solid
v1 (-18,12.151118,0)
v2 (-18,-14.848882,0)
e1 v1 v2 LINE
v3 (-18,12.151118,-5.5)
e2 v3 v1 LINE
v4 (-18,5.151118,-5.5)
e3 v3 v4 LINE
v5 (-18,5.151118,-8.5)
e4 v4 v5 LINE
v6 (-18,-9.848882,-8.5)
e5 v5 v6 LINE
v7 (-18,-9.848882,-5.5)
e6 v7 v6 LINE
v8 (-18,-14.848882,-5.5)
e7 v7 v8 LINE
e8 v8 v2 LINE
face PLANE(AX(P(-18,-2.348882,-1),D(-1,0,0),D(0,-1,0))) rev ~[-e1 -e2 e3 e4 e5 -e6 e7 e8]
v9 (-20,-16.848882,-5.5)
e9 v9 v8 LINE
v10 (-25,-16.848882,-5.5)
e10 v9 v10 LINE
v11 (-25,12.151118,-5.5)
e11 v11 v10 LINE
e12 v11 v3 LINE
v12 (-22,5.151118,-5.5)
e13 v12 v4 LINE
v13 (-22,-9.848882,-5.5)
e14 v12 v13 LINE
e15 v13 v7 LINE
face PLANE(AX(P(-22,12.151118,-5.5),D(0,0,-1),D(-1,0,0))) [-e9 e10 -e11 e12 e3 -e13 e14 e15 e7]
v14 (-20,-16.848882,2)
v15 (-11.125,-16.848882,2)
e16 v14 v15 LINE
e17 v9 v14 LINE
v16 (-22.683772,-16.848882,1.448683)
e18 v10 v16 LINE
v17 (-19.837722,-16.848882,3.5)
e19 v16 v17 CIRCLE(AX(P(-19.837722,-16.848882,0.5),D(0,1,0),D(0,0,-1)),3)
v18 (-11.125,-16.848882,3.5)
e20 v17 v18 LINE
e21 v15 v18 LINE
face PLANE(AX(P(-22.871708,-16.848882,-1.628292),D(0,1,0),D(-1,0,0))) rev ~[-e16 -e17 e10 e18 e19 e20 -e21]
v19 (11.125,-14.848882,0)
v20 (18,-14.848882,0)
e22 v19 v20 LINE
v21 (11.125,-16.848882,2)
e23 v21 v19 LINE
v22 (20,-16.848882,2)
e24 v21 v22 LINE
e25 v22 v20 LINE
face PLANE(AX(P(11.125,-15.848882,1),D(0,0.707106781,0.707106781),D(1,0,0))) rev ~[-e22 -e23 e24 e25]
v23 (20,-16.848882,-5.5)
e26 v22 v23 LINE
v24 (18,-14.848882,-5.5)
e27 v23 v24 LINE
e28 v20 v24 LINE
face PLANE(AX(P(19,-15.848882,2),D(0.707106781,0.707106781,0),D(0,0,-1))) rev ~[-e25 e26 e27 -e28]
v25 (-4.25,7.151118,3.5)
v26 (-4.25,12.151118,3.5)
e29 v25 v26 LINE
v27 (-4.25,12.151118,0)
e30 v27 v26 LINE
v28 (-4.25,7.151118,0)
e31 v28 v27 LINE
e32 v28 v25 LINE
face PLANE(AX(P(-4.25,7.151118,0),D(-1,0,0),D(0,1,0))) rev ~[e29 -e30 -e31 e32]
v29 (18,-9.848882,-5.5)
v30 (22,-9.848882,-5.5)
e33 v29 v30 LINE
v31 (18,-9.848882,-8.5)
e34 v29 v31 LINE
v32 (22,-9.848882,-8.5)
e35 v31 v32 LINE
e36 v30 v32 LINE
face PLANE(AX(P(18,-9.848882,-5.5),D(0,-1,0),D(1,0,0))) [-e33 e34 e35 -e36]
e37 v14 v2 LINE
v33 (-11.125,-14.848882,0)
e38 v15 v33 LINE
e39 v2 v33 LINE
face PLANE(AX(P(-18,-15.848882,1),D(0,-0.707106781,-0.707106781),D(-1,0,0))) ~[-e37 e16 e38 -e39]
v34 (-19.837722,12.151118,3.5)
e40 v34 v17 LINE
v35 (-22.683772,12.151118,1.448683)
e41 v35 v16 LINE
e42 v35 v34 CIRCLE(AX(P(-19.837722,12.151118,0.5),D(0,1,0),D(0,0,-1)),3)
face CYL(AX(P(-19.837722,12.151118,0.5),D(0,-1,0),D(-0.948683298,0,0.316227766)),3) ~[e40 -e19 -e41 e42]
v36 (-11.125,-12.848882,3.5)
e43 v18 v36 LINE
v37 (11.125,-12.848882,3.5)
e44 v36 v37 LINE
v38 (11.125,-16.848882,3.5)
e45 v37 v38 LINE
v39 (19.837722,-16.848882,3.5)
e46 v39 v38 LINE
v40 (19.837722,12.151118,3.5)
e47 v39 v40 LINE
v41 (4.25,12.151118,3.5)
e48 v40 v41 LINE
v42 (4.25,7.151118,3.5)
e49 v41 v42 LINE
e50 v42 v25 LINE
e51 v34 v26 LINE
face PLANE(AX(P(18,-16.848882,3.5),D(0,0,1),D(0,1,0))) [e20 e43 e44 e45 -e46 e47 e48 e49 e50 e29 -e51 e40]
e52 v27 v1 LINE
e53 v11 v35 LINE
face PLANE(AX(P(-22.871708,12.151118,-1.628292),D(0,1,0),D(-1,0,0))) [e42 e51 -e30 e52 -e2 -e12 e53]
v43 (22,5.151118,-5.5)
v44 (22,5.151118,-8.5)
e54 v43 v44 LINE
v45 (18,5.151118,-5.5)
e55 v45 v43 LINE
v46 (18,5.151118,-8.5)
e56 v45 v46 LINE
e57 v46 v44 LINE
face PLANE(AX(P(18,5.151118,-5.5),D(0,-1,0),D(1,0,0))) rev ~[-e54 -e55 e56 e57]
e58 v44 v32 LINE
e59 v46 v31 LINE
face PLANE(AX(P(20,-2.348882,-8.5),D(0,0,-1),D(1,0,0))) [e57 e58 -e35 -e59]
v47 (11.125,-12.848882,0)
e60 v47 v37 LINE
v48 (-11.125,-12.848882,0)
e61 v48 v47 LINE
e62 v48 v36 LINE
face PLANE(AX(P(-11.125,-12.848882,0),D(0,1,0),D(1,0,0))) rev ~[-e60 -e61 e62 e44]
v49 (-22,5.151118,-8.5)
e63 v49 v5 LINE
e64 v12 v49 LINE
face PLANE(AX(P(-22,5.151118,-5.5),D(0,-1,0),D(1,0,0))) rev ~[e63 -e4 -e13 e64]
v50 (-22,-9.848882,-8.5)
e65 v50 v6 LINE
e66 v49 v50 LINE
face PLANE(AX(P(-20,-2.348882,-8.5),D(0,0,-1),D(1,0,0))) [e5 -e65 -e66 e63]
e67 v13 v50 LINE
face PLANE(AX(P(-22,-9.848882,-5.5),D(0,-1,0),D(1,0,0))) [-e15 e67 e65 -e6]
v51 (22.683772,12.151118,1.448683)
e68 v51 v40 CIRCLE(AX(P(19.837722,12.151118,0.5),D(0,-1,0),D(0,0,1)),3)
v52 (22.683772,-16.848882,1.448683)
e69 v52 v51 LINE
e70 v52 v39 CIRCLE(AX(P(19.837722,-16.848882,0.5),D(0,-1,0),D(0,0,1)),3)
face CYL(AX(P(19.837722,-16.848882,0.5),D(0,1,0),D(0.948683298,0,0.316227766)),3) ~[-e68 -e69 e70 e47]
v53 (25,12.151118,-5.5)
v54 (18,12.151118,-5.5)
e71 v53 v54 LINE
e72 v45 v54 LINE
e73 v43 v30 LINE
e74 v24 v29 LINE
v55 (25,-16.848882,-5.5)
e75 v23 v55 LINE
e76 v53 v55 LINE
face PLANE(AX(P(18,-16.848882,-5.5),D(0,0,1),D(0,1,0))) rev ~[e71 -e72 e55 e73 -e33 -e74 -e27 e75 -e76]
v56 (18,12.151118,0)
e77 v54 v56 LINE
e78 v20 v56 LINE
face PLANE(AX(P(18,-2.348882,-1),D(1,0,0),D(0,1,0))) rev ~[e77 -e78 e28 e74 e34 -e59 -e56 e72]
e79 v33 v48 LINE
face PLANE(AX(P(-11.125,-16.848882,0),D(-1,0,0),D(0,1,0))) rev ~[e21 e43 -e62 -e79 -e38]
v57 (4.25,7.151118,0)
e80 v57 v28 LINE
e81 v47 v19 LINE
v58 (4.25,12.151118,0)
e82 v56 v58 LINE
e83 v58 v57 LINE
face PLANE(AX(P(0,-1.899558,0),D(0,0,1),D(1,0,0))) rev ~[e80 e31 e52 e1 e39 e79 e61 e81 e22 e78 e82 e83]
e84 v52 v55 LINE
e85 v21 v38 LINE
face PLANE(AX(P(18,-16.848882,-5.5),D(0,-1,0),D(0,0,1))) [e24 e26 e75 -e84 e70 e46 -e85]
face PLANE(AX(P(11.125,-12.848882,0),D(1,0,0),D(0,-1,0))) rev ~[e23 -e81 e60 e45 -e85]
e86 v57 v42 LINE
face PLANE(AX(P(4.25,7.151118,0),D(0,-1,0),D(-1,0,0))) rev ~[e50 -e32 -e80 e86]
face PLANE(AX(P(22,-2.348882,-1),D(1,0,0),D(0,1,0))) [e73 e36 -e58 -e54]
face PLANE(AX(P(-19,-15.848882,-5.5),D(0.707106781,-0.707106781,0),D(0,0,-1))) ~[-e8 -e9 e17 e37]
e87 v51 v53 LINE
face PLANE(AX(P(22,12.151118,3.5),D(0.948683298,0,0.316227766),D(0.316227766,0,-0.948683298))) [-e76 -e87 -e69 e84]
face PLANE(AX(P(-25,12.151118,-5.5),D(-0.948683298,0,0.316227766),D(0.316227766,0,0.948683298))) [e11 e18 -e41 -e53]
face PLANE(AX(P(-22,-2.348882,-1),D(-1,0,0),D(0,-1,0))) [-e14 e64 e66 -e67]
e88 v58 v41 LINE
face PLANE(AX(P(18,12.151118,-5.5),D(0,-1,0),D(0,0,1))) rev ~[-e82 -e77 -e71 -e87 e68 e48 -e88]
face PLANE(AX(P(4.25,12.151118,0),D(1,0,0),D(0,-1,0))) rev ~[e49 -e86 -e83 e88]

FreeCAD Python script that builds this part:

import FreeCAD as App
import Part
import Sketcher

V = App.Vector


def edges_at(feature, points):
    """Names of the edges that pass closest to the given points."""
    edges = feature.Shape.Edges
    near = lambda p: min(range(len(edges)), key=lambda i: edges[i].distToShape(Part.Vertex(*p))[0])
    return sorted({f"Edge{near(p) + 1}" for p in points})


def add_polygon(sketch, points):
    """Adds a closed chain of lines whose ends are joined by coincident constraints."""
    first, n = sketch.GeometryCount, len(points)
    for a, b in zip(points, points[1:] + points[:1]):
        sketch.addGeometry(Part.LineSegment(App.Vector(*a, 0), App.Vector(*b, 0)), False)
    for i in range(n):
        sketch.addConstraint(Sketcher.Constraint("Coincident", first + i, 2, first + (i + 1) % n, 1))

doc = App.newDocument("Part")
body = doc.addObject("PartDesign::Body", "Body")

sketch1 = doc.addObject("Sketcher::SketchObject", "Sketch")
body.addObject(sketch1)
sketch1.AttachmentSupport = (doc.XY_Plane, [""])
sketch1.MapMode = "FlatFace"
add_polygon(sketch1, [(-4.2, 12.2), (-18, 12.2), (-18, -16.8), (-11.1, -16.8), (-11.1, -12.8), (11.1, -12.8), (11.1, -16.8), (18, -16.8), (18, 12.2), (4.2, 12.2), (4.2, 7.2), (-4.2, 7.2)])
sketch1.addConstraint(Sketcher.Constraint("Horizontal", 0))
sketch1.addConstraint(Sketcher.Constraint("Vertical", 1))
sketch1.addConstraint(Sketcher.Constraint("Horizontal", 2))
sketch1.addConstraint(Sketcher.Constraint("Vertical", 3))
sketch1.addConstraint(Sketcher.Constraint("Horizontal", 4))
sketch1.addConstraint(Sketcher.Constraint("Vertical", 5))
sketch1.addConstraint(Sketcher.Constraint("Horizontal", 6))
sketch1.addConstraint(Sketcher.Constraint("Vertical", 7))
sketch1.addConstraint(Sketcher.Constraint("Horizontal", 8))
sketch1.addConstraint(Sketcher.Constraint("Vertical", 9))
sketch1.addConstraint(Sketcher.Constraint("Horizontal", 10))
sketch1.addConstraint(Sketcher.Constraint("Vertical", 11))
sketch1.addConstraint(Sketcher.Constraint("Symmetric", 2, 2, 5, 2, -2))
sketch1.addConstraint(Sketcher.Constraint("Symmetric", 0, 2, 7, 2, -2))
sketch1.addConstraint(Sketcher.Constraint("Equal", 0, 8))
sketch1.addConstraint(Sketcher.Constraint("DistanceY", 1, 2, 1, 1, 29.0))
sketch1.addConstraint(Sketcher.Constraint("DistanceY", 3, 1, 3, 2, 4.0))
sketch1.addConstraint(Sketcher.Constraint("DistanceY", 9, 2, 9, 1, 5.0))
sketch1.addConstraint(Sketcher.Constraint("DistanceX", 10, 2, 10, 1, 8.5))
sketch1.addConstraint(Sketcher.Constraint("DistanceX", 0, 2, -1, 1, 18.0))
sketch1.addConstraint(Sketcher.Constraint("DistanceX", 4, 1, 4, 2, 22.25))
sketch1.addConstraint(Sketcher.Constraint("DistanceY", -1, 1, 0, 2, 12.151118))
pad1 = doc.addObject("PartDesign::Pad", "Pad")
body.addObject(pad1)
pad1.Profile = sketch1
pad1.Length = 3.5

sketch2 = doc.addObject("Sketcher::SketchObject", "Sketch001")
body.addObject(sketch2)
sketch2.AttachmentSupport = (doc.YZ_Plane, [""])
sketch2.MapMode = "FlatFace"
sketch2.AttachmentOffset = App.Placement(V(0, 0, -18), App.Rotation())
add_polygon(sketch2, [(12, 4), (12, -6), (-17, -6), (-17, 4)])
sketch2.addConstraint(Sketcher.Constraint("Vertical", 0))
sketch2.addConstraint(Sketcher.Constraint("Horizontal", 1))
sketch2.addConstraint(Sketcher.Constraint("Vertical", 2))
sketch2.addConstraint(Sketcher.Constraint("Horizontal", 3))
sketch2.addConstraint(Sketcher.Constraint("DistanceX", 1, 2, 1, 1, 29.0))
sketch2.addConstraint(Sketcher.Constraint("DistanceY", 0, 2, 0, 1, 9.0))
sketch2.addConstraint(Sketcher.Constraint("DistanceY", 0, 2, -1, 1, 5.5))
sketch2.addConstraint(Sketcher.Constraint("DistanceX", -1, 1, 0, 2, 12.151118))
pad2 = doc.addObject("PartDesign::Pad", "Pad001")
body.addObject(pad2)
pad2.Profile = sketch2
pad2.Length = 4
pad2.Reversed = True

sketch3 = doc.addObject("Sketcher::SketchObject", "Sketch002")
body.addObject(sketch3)
sketch3.AttachmentSupport = (doc.YZ_Plane, [""])
sketch3.MapMode = "FlatFace"
sketch3.AttachmentOffset = App.Placement(V(0, 0, 18), App.Rotation())
add_polygon(sketch3, [(-17, 4), (-17, -6), (12, -6), (12, 4)])
sketch3.addConstraint(Sketcher.Constraint("Vertical", 0))
sketch3.addConstraint(Sketcher.Constraint("Horizontal", 1))
sketch3.addConstraint(Sketcher.Constraint("Vertical", 2))
sketch3.addConstraint(Sketcher.Constraint("Horizontal", 3))
sketch3.addConstraint(Sketcher.Constraint("DistanceX", 1, 1, 1, 2, 29.0))
sketch3.addConstraint(Sketcher.Constraint("DistanceY", 0, 2, 0, 1, 9.0))
sketch3.addConstraint(Sketcher.Constraint("DistanceY", 0, 2, -1, 1, 5.5))
sketch3.addConstraint(Sketcher.Constraint("DistanceX", 0, 2, -1, 1, 16.848882))
pad3 = doc.addObject("PartDesign::Pad", "Pad002")
body.addObject(pad3)
pad3.Profile = sketch3
pad3.Length = 4
doc.recompute()

chamfer = doc.addObject("PartDesign::Chamfer", "Chamfer")
body.addObject(chamfer)
chamfer.Base = (pad3, edges_at(pad3, [(-14.562, -16.849, 0), (14.562, -16.849, 0)]))
chamfer.Size = 2

sketch4 = doc.addObject("Sketcher::SketchObject", "Sketch003")
body.addObject(sketch4)
sketch4.AttachmentSupport = (doc.XY_Plane, [""])
sketch4.MapMode = "FlatFace"
sketch4.AttachmentOffset = App.Placement(V(0, 0, -5.5), App.Rotation())
add_polygon(sketch4, [(18, -9.8), (18, 5.2), (22, 5.2), (22, -9.8)])
add_polygon(sketch4, [(-22, -9.8), (-22, 5.2), (-18, 5.2), (-18, -9.8)])
sketch4.addConstraint(Sketcher.Constraint("Vertical", 0))
sketch4.addConstraint(Sketcher.Constraint("Horizontal", 1))
sketch4.addConstraint(Sketcher.Constraint("Vertical", 2))
sketch4.addConstraint(Sketcher.Constraint("Horizontal", 3))
sketch4.addConstraint(Sketcher.Constraint("Vertical", 4))
sketch4.addConstraint(Sketcher.Constraint("Horizontal", 5))
sketch4.addConstraint(Sketcher.Constraint("Vertical", 6))
sketch4.addConstraint(Sketcher.Constraint("Horizontal", 7))
sketch4.addConstraint(Sketcher.Constraint("Symmetric", 1, 2, 4, 2, -2))
sketch4.addConstraint(Sketcher.Constraint("Symmetric", 3, 2, 6, 2, -2))
sketch4.addConstraint(Sketcher.Constraint("DistanceX", 1, 1, 1, 2, 4.0))
sketch4.addConstraint(Sketcher.Constraint("DistanceY", 0, 1, 0, 2, 15.0))
sketch4.addConstraint(Sketcher.Constraint("DistanceX", -1, 1, 0, 2, 18.0))
sketch4.addConstraint(Sketcher.Constraint("DistanceY", -1, 1, 0, 2, 5.151118))
pad4 = doc.addObject("PartDesign::Pad", "Pad003")
body.addObject(pad4)
pad4.Profile = sketch4
pad4.Length = 3
pad4.Reversed = True
doc.recompute()

chamfer2 = doc.addObject("PartDesign::Chamfer", "Chamfer001")
body.addObject(chamfer2)
chamfer2.Base = (pad4, edges_at(pad4, [(18, -16.849, -1.75), (-18, -16.849, -1.75)]))
chamfer2.Size = 2

sketch5 = doc.addObject("Sketcher::SketchObject", "Sketch004")
body.addObject(sketch5)
sketch5.AttachmentSupport = (doc.XZ_Plane, [""])
sketch5.MapMode = "FlatFace"
sketch5.AttachmentOffset = App.Placement(V(0, 0, -12.151118), App.Rotation())
add_polygon(sketch5, [(-25, -5.5), (-22, 3.5), (-22, -5.5)])
add_polygon(sketch5, [(22, -5.5), (22, 3.5), (25, -5.5)])
sketch5.addConstraint(Sketcher.Constraint("Vertical", 1))
sketch5.addConstraint(Sketcher.Constraint("Horizontal", 2))
sketch5.addConstraint(Sketcher.Constraint("Vertical", 3))
sketch5.addConstraint(Sketcher.Constraint("Horizontal", 5))
sketch5.addConstraint(Sketcher.Constraint("Symmetric", 0, 2, 3, 2, -2))
sketch5.addConstraint(Sketcher.Constraint("Symmetric", 2, 2, 4, 2, -2))
sketch5.addConstraint(Sketcher.Constraint("DistanceX", 2, 2, 2, 1, 3.0))
sketch5.addConstraint(Sketcher.Constraint("DistanceY", 1, 2, 1, 1, 9.0))
sketch5.addConstraint(Sketcher.Constraint("DistanceX", 0, 2, -1, 1, 22.0))
sketch5.addConstraint(Sketcher.Constraint("DistanceY", -1, 1, 0, 2, 3.5))
pad5 = doc.addObject("PartDesign::Pad", "Pad004")
body.addObject(pad5)
pad5.Profile = sketch5
pad5.Length = 29
doc.recompute()

fillet = doc.addObject("PartDesign::Fillet", "Fillet")
body.addObject(fillet)
fillet.Base = (pad5, edges_at(pad5, [(-22, -2.349, 3.5), (22, -2.349, 3.5)]))
fillet.Radius = 3

doc.recompute()
